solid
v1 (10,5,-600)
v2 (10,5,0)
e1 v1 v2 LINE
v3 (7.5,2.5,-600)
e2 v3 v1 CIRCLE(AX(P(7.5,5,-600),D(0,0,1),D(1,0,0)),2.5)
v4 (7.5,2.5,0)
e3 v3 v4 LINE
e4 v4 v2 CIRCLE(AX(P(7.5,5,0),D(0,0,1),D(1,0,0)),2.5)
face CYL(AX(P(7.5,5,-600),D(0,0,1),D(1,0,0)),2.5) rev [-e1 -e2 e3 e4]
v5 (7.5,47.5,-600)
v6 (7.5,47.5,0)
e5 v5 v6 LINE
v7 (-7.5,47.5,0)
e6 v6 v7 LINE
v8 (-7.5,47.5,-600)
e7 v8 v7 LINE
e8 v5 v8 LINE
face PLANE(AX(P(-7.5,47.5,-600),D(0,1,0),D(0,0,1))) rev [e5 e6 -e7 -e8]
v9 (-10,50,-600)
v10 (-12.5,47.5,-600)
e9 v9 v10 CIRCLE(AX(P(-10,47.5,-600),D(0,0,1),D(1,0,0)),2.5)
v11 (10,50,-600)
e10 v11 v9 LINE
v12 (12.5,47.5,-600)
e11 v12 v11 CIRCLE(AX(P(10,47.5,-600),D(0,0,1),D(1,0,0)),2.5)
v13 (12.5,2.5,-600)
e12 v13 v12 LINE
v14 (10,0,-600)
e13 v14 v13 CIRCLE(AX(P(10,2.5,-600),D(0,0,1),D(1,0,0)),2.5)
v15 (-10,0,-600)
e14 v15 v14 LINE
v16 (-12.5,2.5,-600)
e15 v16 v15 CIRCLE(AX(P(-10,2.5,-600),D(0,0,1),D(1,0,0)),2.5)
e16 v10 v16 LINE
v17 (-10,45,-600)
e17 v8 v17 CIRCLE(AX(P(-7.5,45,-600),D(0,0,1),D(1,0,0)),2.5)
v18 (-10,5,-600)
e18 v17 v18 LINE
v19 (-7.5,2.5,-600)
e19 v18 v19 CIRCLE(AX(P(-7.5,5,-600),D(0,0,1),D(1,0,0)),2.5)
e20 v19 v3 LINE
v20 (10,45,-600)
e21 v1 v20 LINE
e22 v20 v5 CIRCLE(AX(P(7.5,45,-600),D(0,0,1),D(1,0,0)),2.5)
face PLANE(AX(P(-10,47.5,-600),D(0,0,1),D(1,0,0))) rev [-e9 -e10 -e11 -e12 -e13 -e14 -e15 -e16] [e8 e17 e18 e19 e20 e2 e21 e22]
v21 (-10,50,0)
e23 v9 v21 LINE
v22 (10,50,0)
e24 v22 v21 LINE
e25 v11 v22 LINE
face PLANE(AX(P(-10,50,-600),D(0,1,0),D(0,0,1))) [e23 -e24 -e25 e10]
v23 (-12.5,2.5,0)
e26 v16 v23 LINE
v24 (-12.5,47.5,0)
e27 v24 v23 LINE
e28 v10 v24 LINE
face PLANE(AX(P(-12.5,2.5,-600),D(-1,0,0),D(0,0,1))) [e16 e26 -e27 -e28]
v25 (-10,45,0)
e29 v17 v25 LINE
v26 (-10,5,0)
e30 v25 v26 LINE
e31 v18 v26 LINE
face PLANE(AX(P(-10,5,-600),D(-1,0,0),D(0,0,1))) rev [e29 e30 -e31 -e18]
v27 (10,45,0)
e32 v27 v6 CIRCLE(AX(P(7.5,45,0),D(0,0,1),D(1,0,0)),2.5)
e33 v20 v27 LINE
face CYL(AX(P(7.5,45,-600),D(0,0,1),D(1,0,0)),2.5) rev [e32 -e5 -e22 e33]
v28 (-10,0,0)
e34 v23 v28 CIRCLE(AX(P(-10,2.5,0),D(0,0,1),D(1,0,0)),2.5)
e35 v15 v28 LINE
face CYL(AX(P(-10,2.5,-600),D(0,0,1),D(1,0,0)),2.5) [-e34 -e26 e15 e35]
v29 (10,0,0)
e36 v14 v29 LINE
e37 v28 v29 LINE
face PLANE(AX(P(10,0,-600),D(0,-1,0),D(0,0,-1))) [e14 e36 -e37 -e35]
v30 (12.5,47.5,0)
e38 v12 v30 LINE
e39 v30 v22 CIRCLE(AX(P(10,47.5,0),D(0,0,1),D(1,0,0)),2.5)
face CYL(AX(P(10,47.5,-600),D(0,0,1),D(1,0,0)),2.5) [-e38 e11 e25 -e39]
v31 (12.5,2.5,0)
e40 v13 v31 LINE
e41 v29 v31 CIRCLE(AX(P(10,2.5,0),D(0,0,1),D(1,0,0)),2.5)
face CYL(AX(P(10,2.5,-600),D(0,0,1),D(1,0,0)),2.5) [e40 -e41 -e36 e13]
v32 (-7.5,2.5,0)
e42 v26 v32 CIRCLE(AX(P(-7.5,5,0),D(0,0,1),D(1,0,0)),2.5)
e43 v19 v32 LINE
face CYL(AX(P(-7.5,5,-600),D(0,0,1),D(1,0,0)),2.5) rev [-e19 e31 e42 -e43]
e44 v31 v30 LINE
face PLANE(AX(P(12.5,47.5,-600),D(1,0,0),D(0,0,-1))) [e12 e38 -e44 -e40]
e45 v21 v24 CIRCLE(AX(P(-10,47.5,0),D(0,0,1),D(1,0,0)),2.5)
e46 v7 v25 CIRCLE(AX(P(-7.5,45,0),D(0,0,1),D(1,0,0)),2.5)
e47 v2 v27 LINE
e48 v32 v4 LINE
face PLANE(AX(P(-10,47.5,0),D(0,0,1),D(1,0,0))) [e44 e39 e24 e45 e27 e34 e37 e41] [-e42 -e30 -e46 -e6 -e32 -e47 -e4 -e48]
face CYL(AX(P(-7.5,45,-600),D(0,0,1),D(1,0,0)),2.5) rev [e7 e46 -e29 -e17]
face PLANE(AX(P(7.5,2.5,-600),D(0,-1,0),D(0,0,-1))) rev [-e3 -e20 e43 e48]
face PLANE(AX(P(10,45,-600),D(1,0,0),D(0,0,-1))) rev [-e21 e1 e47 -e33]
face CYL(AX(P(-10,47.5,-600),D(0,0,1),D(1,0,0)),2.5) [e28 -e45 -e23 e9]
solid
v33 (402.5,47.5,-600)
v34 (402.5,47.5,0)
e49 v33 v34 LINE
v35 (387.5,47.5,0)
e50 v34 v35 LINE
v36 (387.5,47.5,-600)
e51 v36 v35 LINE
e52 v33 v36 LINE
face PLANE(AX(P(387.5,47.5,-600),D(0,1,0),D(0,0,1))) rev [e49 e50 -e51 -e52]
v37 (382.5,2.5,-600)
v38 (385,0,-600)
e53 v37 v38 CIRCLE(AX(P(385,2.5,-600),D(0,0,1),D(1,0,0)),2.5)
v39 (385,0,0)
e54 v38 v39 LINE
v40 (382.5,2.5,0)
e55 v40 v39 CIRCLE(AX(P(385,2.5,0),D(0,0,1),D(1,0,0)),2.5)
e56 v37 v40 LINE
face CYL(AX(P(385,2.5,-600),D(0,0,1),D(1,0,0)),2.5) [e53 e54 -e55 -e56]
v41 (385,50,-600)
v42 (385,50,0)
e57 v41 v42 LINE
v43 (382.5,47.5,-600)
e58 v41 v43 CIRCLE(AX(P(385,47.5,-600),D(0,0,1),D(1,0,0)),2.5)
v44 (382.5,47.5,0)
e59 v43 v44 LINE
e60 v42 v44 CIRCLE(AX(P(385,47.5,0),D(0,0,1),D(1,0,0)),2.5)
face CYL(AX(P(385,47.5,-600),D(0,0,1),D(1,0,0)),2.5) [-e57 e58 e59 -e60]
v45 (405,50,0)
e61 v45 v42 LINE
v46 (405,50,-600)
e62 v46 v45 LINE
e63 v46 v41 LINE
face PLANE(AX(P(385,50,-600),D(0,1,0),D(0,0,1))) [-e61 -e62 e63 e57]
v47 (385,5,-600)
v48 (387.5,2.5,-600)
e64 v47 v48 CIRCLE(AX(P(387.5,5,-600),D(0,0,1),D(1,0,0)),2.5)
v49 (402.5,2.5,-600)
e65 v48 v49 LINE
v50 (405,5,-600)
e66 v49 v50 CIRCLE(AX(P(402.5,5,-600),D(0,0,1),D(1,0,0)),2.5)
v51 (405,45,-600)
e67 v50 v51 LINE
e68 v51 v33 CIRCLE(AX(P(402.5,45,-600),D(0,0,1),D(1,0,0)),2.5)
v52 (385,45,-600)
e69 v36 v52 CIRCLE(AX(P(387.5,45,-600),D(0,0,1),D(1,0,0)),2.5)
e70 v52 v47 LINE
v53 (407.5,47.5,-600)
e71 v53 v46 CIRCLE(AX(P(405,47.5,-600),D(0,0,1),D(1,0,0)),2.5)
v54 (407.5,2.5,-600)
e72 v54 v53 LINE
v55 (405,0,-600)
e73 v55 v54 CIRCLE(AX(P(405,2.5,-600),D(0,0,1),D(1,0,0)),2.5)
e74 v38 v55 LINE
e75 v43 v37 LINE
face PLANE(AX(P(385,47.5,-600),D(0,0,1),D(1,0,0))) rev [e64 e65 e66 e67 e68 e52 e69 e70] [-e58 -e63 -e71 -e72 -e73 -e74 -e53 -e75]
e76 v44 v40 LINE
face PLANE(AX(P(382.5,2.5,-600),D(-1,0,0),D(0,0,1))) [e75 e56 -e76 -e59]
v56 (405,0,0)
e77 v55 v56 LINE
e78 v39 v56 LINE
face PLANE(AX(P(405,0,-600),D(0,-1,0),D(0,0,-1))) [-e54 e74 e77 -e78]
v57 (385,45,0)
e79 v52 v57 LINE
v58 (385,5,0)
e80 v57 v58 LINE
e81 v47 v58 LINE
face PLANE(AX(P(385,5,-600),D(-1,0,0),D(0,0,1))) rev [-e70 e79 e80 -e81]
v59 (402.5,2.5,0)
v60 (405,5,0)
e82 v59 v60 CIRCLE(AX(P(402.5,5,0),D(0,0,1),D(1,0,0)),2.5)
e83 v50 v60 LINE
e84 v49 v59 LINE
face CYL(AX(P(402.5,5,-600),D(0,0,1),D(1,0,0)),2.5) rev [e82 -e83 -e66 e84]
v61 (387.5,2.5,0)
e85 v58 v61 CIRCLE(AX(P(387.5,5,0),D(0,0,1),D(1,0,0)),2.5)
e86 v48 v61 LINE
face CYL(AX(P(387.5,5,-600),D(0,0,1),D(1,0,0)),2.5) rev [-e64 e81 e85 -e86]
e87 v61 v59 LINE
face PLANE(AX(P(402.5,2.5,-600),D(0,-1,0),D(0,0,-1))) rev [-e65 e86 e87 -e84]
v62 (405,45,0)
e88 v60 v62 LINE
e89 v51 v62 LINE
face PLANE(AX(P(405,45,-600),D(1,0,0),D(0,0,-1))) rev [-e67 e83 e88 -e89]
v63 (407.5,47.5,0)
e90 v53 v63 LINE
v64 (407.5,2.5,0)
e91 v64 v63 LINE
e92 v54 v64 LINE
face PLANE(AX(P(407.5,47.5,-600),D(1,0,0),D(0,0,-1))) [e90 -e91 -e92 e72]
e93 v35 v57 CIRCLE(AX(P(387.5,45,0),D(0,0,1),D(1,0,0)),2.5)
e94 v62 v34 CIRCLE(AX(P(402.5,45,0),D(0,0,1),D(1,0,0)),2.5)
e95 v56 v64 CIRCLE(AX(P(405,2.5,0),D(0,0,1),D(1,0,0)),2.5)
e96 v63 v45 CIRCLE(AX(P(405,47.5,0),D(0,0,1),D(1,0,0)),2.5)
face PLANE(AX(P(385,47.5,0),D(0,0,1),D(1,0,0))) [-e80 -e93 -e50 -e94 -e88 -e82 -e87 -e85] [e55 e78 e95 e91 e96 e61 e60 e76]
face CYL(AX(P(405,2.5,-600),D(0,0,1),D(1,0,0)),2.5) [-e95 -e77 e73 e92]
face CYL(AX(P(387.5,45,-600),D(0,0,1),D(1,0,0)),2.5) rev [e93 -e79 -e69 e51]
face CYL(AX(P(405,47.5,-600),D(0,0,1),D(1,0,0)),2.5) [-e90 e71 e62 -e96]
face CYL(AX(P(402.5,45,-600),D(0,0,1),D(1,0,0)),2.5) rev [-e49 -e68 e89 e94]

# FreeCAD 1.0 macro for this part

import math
import FreeCAD as App
import Part
import Sketcher
from FreeCAD import Vector

doc = App.newDocument("Part")
body = doc.addObject("PartDesign::Body", "Body")

sketch1 = body.newObject("Sketcher::SketchObject", "Sketch")
sketch1.AttachmentSupport = (doc.getObject("XY_Plane"), [""])
sketch1.MapMode = "FlatFace"
sketch1.addGeometry(Part.LineSegment(Vector(10, 50, 0), Vector(-10, 50, 0)), False)
sketch1.addGeometry(Part.ArcOfCircle(Part.Circle(Vector(-10, 47.5, 0), Vector(0, 0, 1), 2.5), math.radians(90), math.radians(180)), False)
sketch1.addGeometry(Part.LineSegment(Vector(-12.5, 47.5, 0), Vector(-12.5, 2.5, 0)), False)
sketch1.addGeometry(Part.ArcOfCircle(Part.Circle(Vector(-10, 2.5, 0), Vector(0, 0, 1), 2.5), math.radians(180), math.radians(270)), False)
sketch1.addGeometry(Part.LineSegment(Vector(-10, 0, 0), Vector(10, 0, 0)), False)
sketch1.addGeometry(Part.ArcOfCircle(Part.Circle(Vector(10, 2.5, 0), Vector(0, 0, 1), 2.5), math.radians(-90), math.radians(0)), False)
sketch1.addGeometry(Part.LineSegment(Vector(12.5, 2.5, 0), Vector(12.5, 47.5, 0)), False)
sketch1.addGeometry(Part.ArcOfCircle(Part.Circle(Vector(10, 47.5, 0), Vector(0, 0, 1), 2.5), math.radians(0), math.radians(90)), False)
sketch1.addGeometry(Part.LineSegment(Vector(-7.5, 47.5, 0), Vector(7.5, 47.5, 0)), False)
sketch1.addGeometry(Part.ArcOfCircle(Part.Circle(Vector(7.5, 45, 0), Vector(0, 0, 1), 2.5), math.radians(0), math.radians(90)), False)
sketch1.addGeometry(Part.LineSegment(Vector(10, 45, 0), Vector(10, 5, 0)), False)
sketch1.addGeometry(Part.ArcOfCircle(Part.Circle(Vector(7.5, 5, 0), Vector(0, 0, 1), 2.5), math.radians(-90), math.radians(0)), False)
sketch1.addGeometry(Part.LineSegment(Vector(7.5, 2.5, 0), Vector(-7.5, 2.5, 0)), False)
sketch1.addGeometry(Part.ArcOfCircle(Part.Circle(Vector(-7.5, 5, 0), Vector(0, 0, 1), 2.5), math.radians(180), math.radians(270)), False)
sketch1.addGeometry(Part.LineSegment(Vector(-10, 5, 0), Vector(-10, 45, 0)), False)
sketch1.addGeometry(Part.ArcOfCircle(Part.Circle(Vector(-7.5, 45, 0), Vector(0, 0, 1), 2.5), math.radians(90), math.radians(180)), False)
sketch1.addConstraint(Sketcher.Constraint("Tangent", 0, 2, 1, 1))
sketch1.addConstraint(Sketcher.Constraint("Tangent", 1, 2, 2, 1))
sketch1.addConstraint(Sketcher.Constraint("Tangent", 2, 2, 3, 1))
sketch1.addConstraint(Sketcher.Constraint("Tangent", 3, 2, 4, 1))
sketch1.addConstraint(Sketcher.Constraint("Tangent", 4, 2, 5, 1))
sketch1.addConstraint(Sketcher.Constraint("Tangent", 5, 2, 6, 1))
sketch1.addConstraint(Sketcher.Constraint("Tangent", 6, 2, 7, 1))
sketch1.addConstraint(Sketcher.Constraint("Tangent", 7, 2, 0, 1))
sketch1.addConstraint(Sketcher.Constraint("Tangent", 8, 2, 9, 2))
sketch1.addConstraint(Sketcher.Constraint("Tangent", 9, 1, 10, 1))
sketch1.addConstraint(Sketcher.Constraint("Tangent", 10, 2, 11, 2))
sketch1.addConstraint(Sketcher.Constraint("Tangent", 11, 1, 12, 1))
sketch1.addConstraint(Sketcher.Constraint("Tangent", 12, 2, 13, 2))
sketch1.addConstraint(Sketcher.Constraint("Tangent", 13, 1, 14, 1))
sketch1.addConstraint(Sketcher.Constraint("Tangent", 14, 2, 15, 2))
sketch1.addConstraint(Sketcher.Constraint("Tangent", 15, 1, 8, 1))
sketch1.addConstraint(Sketcher.Constraint("Horizontal", 0))
sketch1.addConstraint(Sketcher.Constraint("Vertical", 2))
sketch1.addConstraint(Sketcher.Constraint("Horizontal", 4))
sketch1.addConstraint(Sketcher.Constraint("Vertical", 6))
sketch1.addConstraint(Sketcher.Constraint("Horizontal", 8))
sketch1.addConstraint(Sketcher.Constraint("Vertical", 10))
sketch1.addConstraint(Sketcher.Constraint("Horizontal", 12))
sketch1.addConstraint(Sketcher.Constraint("Vertical", 14))
sketch1.addConstraint(Sketcher.Constraint("Equal", 1, 3))
sketch1.addConstraint(Sketcher.Constraint("Equal", 3, 5))
sketch1.addConstraint(Sketcher.Constraint("Equal", 5, 7))
sketch1.addConstraint(Sketcher.Constraint("Equal", 7, 9))
sketch1.addConstraint(Sketcher.Constraint("Equal", 9, 11))
sketch1.addConstraint(Sketcher.Constraint("Equal", 11, 13))
sketch1.addConstraint(Sketcher.Constraint("Equal", 13, 15))
sketch1.addConstraint(Sketcher.Constraint("Symmetric", 3, 2, 4, 2, -1, 1))
sketch1.addConstraint(Sketcher.Constraint("Horizontal", 6, 2, 8, 2))
sketch1.addConstraint(Sketcher.Constraint("Horizontal", 5, 2, 11, 1))
sketch1.addConstraint(Sketcher.Constraint("Vertical", 7, 2, 9, 1))
sketch1.addConstraint(Sketcher.Constraint("Vertical", 3, 2, 13, 1))
sketch1.addConstraint(Sketcher.Constraint("Radius", 1, 2.5))
sketch1.addConstraint(Sketcher.Constraint("DistanceX", 0, 2, 0, 1, 20.0))
sketch1.addConstraint(Sketcher.Constraint("DistanceY", 2, 2, 2, 1, 45.0))
pad1 = body.newObject("PartDesign::Pad", "Pad")
pad1.Profile = sketch1
pad1.Length = 600
pad1.Reversed = True
body2 = doc.addObject("PartDesign::Body", "Body001")

sketch2 = body2.newObject("Sketcher::SketchObject", "Sketch001")
sketch2.AttachmentSupport = (doc.getObject("XY_Plane001"), [""])
sketch2.MapMode = "FlatFace"
sketch2.addGeometry(Part.LineSegment(Vector(405, 50, 0), Vector(385, 50, 0)), False)
sketch2.addGeometry(Part.ArcOfCircle(Part.Circle(Vector(385, 47.5, 0), Vector(0, 0, 1), 2.5), math.radians(90), math.radians(180)), False)
sketch2.addGeometry(Part.LineSegment(Vector(382.5, 47.5, 0), Vector(382.5, 2.5, 0)), False)
sketch2.addGeometry(Part.ArcOfCircle(Part.Circle(Vector(385, 2.5, 0), Vector(0, 0, 1), 2.5), math.radians(180), math.radians(270)), False)
sketch2.addGeometry(Part.LineSegment(Vector(385, 0, 0), Vector(405, 0, 0)), False)
sketch2.addGeometry(Part.ArcOfCircle(Part.Circle(Vector(405, 2.5, 0), Vector(0, 0, 1), 2.5), math.radians(-90), math.radians(0)), False)
sketch2.addGeometry(Part.LineSegment(Vector(407.5, 2.5, 0), Vector(407.5, 47.5, 0)), False)
sketch2.addGeometry(Part.ArcOfCircle(Part.Circle(Vector(405, 47.5, 0), Vector(0, 0, 1), 2.5), math.radians(0), math.radians(90)), False)
sketch2.addGeometry(Part.LineSegment(Vector(387.5, 47.5, 0), Vector(402.5, 47.5, 0)), False)
sketch2.addGeometry(Part.ArcOfCircle(Part.Circle(Vector(402.5, 45, 0), Vector(0, 0, 1), 2.5), math.radians(0), math.radians(90)), False)
sketch2.addGeometry(Part.LineSegment(Vector(405, 45, 0), Vector(405, 5, 0)), False)
sketch2.addGeometry(Part.ArcOfCircle(Part.Circle(Vector(402.5, 5, 0), Vector(0, 0, 1), 2.5), math.radians(-90), math.radians(0)), False)
sketch2.addGeometry(Part.LineSegment(Vector(402.5, 2.5, 0), Vector(387.5, 2.5, 0)), False)
sketch2.addGeometry(Part.ArcOfCircle(Part.Circle(Vector(387.5, 5, 0), Vector(0, 0, 1), 2.5), math.radians(180), math.radians(270)), False)
sketch2.addGeometry(Part.LineSegment(Vector(385, 5, 0), Vector(385, 45, 0)), False)
sketch2.addGeometry(Part.ArcOfCircle(Part.Circle(Vector(387.5, 45, 0), Vector(0, 0, 1), 2.5), math.radians(90), math.radians(180)), False)
sketch2.addConstraint(Sketcher.Constraint("Tangent", 0, 2, 1, 1))
sketch2.addConstraint(Sketcher.Constraint("Tangent", 1, 2, 2, 1))
sketch2.addConstraint(Sketcher.Constraint("Tangent", 2, 2, 3, 1))
sketch2.addConstraint(Sketcher.Constraint("Tangent", 3, 2, 4, 1))
sketch2.addConstraint(Sketcher.Constraint("Tangent", 4, 2, 5, 1))
sketch2.addConstraint(Sketcher.Constraint("Tangent", 5, 2, 6, 1))
sketch2.addConstraint(Sketcher.Constraint("Tangent", 6, 2, 7, 1))
sketch2.addConstraint(Sketcher.Constraint("Tangent", 7, 2, 0, 1))
sketch2.addConstraint(Sketcher.Constraint("Tangent", 8, 2, 9, 2))
sketch2.addConstraint(Sketcher.Constraint("Tangent", 9, 1, 10, 1))
sketch2.addConstraint(Sketcher.Constraint("Tangent", 10, 2, 11, 2))
sketch2.addConstraint(Sketcher.Constraint("Tangent", 11, 1, 12, 1))
sketch2.addConstraint(Sketcher.Constraint("Tangent", 12, 2, 13, 2))
sketch2.addConstraint(Sketcher.Constraint("Tangent", 13, 1, 14, 1))
sketch2.addConstraint(Sketcher.Constraint("Tangent", 14, 2, 15, 2))
sketch2.addConstraint(Sketcher.Constraint("Tangent", 15, 1, 8, 1))
sketch2.addConstraint(Sketcher.Constraint("Horizontal", 0))
sketch2.addConstraint(Sketcher.Constraint("Vertical", 2))
sketch2.addConstraint(Sketcher.Constraint("Horizontal", 4))
sketch2.addConstraint(Sketcher.Constraint("Vertical", 6))
sketch2.addConstraint(Sketcher.Constraint("Horizontal", 8))
sketch2.addConstraint(Sketcher.Constraint("Vertical", 10))
sketch2.addConstraint(Sketcher.Constraint("Horizontal", 12))
sketch2.addConstraint(Sketcher.Constraint("Vertical", 14))
sketch2.addConstraint(Sketcher.Constraint("Equal", 1, 3))
sketch2.addConstraint(Sketcher.Constraint("Equal", 3, 5))
sketch2.addConstraint(Sketcher.Constraint("Equal", 5, 7))
sketch2.addConstraint(Sketcher.Constraint("Equal", 7, 9))
sketch2.addConstraint(Sketcher.Constraint("Equal", 9, 11))
sketch2.addConstraint(Sketcher.Constraint("Equal", 11, 13))
sketch2.addConstraint(Sketcher.Constraint("Equal", 13, 15))
sketch2.addConstraint(Sketcher.Constraint("PointOnObject", 3, 2, -1))
sketch2.addConstraint(Sketcher.Constraint("Horizontal", 6, 2, 8, 2))
sketch2.addConstraint(Sketcher.Constraint("Horizontal", 5, 2, 11, 1))
sketch2.addConstraint(Sketcher.Constraint("Vertical", 7, 2, 9, 1))
sketch2.addConstraint(Sketcher.Constraint("Vertical", 3, 2, 13, 1))
sketch2.addConstraint(Sketcher.Constraint("Radius", 1, 2.5))
sketch2.addConstraint(Sketcher.Constraint("DistanceX", 0, 2, 0, 1, 20.0))
sketch2.addConstraint(Sketcher.Constraint("DistanceY", 2, 2, 2, 1, 45.0))
sketch2.addConstraint(Sketcher.Constraint("DistanceX", -1, 1, 1, 3, 385.0))
pad2 = body2.newObject("PartDesign::Pad", "Pad001")
pad2.Profile = sketch2
pad2.Length = 600
pad2.Reversed = True

doc.recompute()
